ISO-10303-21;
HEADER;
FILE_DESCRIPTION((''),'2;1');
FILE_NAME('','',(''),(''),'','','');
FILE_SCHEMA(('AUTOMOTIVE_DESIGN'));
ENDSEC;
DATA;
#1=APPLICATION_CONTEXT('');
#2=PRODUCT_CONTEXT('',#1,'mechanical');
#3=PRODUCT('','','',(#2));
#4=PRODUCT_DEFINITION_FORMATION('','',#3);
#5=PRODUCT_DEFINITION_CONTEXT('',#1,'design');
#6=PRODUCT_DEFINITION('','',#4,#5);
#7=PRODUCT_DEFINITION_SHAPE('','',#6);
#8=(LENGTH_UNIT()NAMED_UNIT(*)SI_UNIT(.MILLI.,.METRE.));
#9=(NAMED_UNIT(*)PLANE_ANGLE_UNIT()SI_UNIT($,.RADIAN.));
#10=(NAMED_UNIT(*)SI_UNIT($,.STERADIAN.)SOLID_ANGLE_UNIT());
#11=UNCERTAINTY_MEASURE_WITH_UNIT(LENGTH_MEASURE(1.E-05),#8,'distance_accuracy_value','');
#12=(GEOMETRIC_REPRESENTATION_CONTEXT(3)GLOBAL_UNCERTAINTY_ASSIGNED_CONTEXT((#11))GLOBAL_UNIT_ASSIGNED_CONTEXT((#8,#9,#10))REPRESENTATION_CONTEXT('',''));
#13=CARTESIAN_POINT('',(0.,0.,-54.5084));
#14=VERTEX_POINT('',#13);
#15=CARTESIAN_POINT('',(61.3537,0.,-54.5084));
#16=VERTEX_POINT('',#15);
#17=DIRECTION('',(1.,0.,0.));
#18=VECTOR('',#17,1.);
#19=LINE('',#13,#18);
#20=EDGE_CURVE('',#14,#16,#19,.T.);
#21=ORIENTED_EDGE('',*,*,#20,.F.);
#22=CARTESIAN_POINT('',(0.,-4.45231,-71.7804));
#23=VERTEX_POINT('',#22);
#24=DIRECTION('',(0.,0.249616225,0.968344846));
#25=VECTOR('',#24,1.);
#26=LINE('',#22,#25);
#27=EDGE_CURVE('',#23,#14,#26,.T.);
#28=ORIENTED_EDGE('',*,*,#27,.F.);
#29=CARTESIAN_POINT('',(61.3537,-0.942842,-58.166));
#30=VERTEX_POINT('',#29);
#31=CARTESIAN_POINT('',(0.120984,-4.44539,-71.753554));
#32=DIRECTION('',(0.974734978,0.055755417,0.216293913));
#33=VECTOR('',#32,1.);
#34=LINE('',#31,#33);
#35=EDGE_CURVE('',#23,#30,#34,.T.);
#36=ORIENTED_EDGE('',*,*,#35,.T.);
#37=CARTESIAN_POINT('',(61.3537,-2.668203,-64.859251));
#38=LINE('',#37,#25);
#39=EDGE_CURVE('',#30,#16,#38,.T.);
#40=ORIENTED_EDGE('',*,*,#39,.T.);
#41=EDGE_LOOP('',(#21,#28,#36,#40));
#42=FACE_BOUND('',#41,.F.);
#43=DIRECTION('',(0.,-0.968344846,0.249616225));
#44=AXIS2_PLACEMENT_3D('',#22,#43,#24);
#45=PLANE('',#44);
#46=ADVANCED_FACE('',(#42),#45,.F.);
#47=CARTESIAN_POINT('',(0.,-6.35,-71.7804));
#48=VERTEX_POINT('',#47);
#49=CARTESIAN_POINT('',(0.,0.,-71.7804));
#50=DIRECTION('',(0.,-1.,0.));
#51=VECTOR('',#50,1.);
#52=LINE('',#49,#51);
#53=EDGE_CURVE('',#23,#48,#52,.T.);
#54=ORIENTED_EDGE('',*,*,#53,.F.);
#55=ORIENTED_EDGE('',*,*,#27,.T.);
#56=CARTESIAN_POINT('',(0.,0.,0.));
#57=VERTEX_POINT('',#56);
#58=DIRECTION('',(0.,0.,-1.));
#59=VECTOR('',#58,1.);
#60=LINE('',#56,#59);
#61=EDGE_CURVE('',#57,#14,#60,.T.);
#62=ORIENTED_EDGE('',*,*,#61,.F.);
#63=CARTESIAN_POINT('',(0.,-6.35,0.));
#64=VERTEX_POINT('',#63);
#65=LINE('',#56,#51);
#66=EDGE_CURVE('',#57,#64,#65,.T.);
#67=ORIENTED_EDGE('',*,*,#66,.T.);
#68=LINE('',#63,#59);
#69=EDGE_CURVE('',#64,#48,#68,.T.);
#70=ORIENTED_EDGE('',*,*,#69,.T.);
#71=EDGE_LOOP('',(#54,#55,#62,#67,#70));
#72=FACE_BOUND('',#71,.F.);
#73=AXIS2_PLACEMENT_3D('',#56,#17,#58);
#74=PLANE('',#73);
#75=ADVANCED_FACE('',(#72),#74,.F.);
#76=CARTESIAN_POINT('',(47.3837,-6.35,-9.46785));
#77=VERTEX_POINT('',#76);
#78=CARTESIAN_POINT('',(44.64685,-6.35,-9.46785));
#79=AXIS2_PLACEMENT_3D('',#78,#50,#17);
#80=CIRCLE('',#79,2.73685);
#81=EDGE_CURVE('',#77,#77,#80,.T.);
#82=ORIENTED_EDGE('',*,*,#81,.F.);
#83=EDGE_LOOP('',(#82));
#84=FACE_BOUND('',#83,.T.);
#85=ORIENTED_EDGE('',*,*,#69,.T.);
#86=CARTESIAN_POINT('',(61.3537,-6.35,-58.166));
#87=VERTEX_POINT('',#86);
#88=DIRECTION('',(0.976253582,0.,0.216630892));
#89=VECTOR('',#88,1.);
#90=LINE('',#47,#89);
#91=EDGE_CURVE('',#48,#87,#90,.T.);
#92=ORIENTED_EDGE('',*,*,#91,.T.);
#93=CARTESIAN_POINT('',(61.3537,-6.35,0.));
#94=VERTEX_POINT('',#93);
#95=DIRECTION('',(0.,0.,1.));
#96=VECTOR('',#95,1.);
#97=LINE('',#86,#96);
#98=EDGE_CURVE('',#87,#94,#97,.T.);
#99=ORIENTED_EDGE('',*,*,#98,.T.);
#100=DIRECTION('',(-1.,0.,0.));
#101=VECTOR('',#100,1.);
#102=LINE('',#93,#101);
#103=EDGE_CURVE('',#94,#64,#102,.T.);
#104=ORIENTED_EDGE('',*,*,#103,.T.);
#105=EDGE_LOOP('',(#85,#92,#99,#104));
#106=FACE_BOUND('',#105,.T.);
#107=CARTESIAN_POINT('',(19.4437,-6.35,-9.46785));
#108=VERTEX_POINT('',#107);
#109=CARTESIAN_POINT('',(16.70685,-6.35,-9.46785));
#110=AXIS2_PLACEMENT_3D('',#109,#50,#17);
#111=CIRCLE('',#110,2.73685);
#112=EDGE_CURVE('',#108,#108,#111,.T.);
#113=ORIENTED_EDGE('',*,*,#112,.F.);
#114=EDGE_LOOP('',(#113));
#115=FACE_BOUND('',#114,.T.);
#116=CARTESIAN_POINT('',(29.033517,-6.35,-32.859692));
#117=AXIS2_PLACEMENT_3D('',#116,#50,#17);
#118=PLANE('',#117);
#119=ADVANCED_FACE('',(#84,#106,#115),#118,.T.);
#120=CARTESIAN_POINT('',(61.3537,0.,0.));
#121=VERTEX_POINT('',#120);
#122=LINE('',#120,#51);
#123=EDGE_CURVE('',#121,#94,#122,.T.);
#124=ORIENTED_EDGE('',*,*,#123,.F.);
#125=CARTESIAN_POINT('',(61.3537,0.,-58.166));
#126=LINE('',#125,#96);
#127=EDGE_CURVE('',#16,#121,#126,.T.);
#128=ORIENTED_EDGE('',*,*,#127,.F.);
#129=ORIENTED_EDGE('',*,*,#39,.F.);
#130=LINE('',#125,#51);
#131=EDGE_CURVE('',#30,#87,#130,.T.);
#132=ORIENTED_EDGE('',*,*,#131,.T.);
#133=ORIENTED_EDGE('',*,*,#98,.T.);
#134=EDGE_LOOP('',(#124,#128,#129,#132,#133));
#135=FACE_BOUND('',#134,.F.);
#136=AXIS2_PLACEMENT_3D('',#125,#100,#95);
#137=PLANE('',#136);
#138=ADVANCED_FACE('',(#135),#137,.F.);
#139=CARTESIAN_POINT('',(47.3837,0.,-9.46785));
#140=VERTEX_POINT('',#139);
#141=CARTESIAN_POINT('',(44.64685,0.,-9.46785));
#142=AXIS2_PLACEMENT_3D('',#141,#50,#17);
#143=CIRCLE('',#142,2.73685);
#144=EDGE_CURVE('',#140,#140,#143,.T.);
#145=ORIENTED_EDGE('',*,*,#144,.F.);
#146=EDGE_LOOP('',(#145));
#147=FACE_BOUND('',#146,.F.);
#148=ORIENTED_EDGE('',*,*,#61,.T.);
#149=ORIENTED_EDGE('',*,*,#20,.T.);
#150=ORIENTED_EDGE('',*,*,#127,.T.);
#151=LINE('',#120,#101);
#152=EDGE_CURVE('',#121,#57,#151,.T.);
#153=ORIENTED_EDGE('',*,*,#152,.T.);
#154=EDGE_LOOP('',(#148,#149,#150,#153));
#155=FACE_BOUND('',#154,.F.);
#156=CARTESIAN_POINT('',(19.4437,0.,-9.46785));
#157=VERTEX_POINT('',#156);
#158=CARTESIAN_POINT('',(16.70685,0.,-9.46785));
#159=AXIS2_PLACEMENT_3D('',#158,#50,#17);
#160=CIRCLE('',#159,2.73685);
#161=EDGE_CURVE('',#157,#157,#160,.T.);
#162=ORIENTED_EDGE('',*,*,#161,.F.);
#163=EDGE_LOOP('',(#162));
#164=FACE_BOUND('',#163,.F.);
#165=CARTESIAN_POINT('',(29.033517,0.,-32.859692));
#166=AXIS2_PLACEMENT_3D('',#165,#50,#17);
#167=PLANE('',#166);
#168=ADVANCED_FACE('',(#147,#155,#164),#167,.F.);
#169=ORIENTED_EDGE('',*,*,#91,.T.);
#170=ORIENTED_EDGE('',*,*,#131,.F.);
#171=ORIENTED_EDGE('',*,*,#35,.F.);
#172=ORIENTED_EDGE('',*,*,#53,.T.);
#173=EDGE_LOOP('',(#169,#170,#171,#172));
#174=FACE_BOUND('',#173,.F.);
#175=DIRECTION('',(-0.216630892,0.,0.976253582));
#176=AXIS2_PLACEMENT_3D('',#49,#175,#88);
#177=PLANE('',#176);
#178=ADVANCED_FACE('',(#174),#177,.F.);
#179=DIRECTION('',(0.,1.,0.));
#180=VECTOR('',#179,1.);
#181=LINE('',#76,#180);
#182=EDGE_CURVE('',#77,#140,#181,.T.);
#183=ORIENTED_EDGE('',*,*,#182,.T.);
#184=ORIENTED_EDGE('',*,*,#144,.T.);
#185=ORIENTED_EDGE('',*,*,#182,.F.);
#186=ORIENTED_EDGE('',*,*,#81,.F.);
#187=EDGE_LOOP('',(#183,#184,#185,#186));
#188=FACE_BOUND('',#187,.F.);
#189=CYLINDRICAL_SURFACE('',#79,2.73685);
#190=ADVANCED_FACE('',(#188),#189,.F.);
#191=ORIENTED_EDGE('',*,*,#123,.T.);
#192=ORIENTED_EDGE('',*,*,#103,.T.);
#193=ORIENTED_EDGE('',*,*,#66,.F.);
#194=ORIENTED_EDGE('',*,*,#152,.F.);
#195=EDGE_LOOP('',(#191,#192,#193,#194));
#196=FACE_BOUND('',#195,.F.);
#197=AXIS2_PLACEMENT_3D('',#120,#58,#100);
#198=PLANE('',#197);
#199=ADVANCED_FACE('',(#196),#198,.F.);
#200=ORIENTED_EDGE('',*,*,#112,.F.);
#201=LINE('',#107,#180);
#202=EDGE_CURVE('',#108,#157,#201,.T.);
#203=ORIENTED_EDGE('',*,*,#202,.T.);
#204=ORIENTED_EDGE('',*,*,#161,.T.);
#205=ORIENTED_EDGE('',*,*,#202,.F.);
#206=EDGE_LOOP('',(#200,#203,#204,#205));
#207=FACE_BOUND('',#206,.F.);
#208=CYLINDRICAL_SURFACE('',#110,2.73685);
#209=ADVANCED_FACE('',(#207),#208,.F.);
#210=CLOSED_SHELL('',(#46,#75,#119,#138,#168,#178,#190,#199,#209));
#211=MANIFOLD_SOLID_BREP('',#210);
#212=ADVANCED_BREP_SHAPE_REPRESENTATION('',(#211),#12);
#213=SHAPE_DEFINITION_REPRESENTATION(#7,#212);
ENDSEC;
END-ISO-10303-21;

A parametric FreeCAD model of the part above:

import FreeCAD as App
import Part
import Sketcher
from FreeCAD import Vector
Q = App.Units.Quantity


def add_polygon(sketch, points):
    """Adds a closed chain of lines whose ends are joined by coincident constraints."""
    first, n = sketch.GeometryCount, len(points)
    for a, b in zip(points, points[1:] + points[:1]):
        sketch.addGeometry(Part.LineSegment(App.Vector(*a, 0), App.Vector(*b, 0)), False)
    for i in range(n):
        sketch.addConstraint(Sketcher.Constraint("Coincident", first + i, 2, first + (i + 1) % n, 1))

doc = App.newDocument("Part")
body = doc.addObject("PartDesign::Body", "Body")

# Sketch on XZ plane
sketch1 = body.newObject("Sketcher::SketchObject", "Sketch")
sketch1.AttachmentSupport = (doc.getObject("XZ_Plane"), [""])
sketch1.MapMode = "FlatFace"
add_polygon(sketch1, [(61, 0), (0, 0), (0, -72), (61, -58)])  # lines 0-3
sketch1.addConstraint([
    Sketcher.Constraint("Horizontal", 0),
    Sketcher.Constraint("Vertical", 1),
    Sketcher.Constraint("Vertical", 3),
    Sketcher.Constraint("Coincident", 0, 2, -1, 1),
    Sketcher.Constraint("DistanceY", 3, 1, 3, 2, Q("2.29 in")),
    Sketcher.Constraint("DistanceY", 1, 2, 1, 1, Q("2.826 in")),
    Sketcher.Constraint("DistanceX", 0, 2, 0, 1, Q("2.4155 in")),
])
pad1 = body.newObject("PartDesign::Pad", "Pad")
pad1.Profile = sketch1
pad1.Length = Q("0.25 in")

# Sketch on XZ plane
sketch2 = body.newObject("Sketcher::SketchObject", "Sketch001")
sketch2.AttachmentSupport = (doc.getObject("XZ_Plane"), [""])
sketch2.MapMode = "FlatFace"
sketch2.AttachmentOffset = App.Placement(Vector(0, 0, 0.25 * 25.4), App.Rotation())
sketch2.addGeometry([
    Part.Circle(Vector(44.6, -9.5, 0), Vector(0, 0, 1), 2.7),
    Part.Circle(Vector(16.7, -9.5, 0), Vector(0, 0, 1), 2.7),
], False)
sketch2.addConstraint([
    Sketcher.Constraint("Equal", 0, 1),
    Sketcher.Constraint("Horizontal", 0, 3, 1, 3),
    Sketcher.Constraint("Diameter", 0, Q("0.2155 in")),
    Sketcher.Constraint("DistanceX", 1, 3, 0, 3, Q("1.1 in")),
    Sketcher.Constraint("DistanceX", -1, 1, 0, 3, Q("44.64685 mm")),
    Sketcher.Constraint("DistanceY", 0, 3, -1, 1, Q("9.46785 mm")),
])
pocket1 = body.newObject("PartDesign::Pocket", "Pocket")
pocket1.Profile = sketch2
pocket1.Length = Q("0.25 in")

# Sketch on YZ plane
sketch3 = body.newObject("Sketcher::SketchObject", "Sketch002")
sketch3.AttachmentSupport = (doc.getObject("YZ_Plane"), [""])
sketch3.MapMode = "FlatFace"
add_polygon(sketch3, [(-4.5, -71.8), (0, -54.5), (0, -71.8)])  # lines 0-2
sketch3.addConstraint([
    Sketcher.Constraint("Vertical", 1),
    Sketcher.Constraint("Horizontal", 2),
    Sketcher.Constraint("PointOnObject", 0, 2, -2),
    Sketcher.Constraint("DistanceY", 1, 2, 1, 1, Q("0.68 in")),
    Sketcher.Constraint("DistanceY", 0, 2, -1, 1, Q("2.146 in")),
    Sketcher.Constraint("DistanceX", 2, 2, 2, 1, Q("4.45231 mm")),
])
pocket2 = body.newObject("PartDesign::Pocket", "Pocket001")
pocket2.Profile = sketch3
pocket2.Length = Q("2.5 in")
pocket2.Reversed = True

doc.recompute()
